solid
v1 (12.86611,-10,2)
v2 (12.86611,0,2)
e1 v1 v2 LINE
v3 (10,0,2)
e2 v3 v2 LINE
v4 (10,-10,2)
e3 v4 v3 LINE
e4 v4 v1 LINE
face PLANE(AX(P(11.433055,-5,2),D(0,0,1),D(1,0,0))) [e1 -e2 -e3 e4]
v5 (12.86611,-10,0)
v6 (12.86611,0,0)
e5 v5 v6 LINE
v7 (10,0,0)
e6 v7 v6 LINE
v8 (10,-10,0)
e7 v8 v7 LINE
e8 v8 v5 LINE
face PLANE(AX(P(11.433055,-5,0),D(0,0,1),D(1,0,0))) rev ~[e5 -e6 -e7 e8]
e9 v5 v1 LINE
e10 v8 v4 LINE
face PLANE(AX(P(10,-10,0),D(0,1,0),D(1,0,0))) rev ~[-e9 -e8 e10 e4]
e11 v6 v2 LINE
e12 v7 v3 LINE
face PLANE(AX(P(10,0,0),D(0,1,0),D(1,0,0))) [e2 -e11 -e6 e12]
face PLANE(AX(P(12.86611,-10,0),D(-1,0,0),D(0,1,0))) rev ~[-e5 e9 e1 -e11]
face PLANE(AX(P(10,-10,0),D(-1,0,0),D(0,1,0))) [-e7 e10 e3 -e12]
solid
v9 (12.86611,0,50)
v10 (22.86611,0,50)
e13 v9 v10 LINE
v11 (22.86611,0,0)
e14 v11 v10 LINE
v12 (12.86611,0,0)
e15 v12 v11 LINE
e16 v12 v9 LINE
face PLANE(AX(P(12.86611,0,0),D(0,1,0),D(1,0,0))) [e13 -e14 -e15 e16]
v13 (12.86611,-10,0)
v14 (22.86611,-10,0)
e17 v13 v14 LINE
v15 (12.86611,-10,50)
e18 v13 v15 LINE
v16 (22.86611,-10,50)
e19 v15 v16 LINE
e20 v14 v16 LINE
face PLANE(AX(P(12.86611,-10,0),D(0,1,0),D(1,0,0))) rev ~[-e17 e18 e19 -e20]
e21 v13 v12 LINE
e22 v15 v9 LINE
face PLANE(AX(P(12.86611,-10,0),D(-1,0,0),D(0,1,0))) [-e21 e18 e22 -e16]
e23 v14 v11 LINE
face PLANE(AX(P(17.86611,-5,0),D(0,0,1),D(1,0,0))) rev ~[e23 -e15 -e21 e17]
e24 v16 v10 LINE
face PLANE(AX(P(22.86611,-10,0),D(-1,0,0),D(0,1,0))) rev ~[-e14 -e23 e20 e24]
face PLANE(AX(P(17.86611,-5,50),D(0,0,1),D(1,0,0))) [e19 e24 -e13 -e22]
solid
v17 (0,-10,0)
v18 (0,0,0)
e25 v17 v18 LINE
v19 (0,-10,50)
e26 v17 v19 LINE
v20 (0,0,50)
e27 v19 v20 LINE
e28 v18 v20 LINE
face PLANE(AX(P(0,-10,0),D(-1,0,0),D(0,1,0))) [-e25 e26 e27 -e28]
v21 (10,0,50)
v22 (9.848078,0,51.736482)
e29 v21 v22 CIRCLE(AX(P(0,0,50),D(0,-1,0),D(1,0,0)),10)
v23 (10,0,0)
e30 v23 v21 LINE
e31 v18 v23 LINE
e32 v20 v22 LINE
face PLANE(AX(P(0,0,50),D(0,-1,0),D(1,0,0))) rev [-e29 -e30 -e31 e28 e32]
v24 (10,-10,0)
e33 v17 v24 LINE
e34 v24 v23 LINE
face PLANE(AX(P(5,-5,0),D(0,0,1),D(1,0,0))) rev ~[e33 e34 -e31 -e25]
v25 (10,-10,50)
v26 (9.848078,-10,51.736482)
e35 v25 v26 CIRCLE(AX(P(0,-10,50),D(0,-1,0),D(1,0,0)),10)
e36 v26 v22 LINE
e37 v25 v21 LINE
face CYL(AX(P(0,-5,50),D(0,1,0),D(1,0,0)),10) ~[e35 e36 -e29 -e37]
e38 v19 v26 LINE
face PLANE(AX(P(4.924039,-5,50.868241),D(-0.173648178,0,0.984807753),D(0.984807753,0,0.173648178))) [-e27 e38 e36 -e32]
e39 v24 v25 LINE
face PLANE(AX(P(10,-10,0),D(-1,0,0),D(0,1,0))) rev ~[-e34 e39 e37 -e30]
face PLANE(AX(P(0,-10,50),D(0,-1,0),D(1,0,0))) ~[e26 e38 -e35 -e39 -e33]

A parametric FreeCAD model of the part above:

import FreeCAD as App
import Part
import Sketcher

V = App.Vector
Q = App.Units.Quantity

doc = App.newDocument("Part")
body = doc.addObject("PartDesign::Body", "Body")
body.AllowCompound = True

sketch1 = body.newObject("Sketcher::SketchObject", "Sketch")
sketch1.AttachmentSupport = (doc.getObject("XY_Plane"), [""])
sketch1.MapMode = "FlatFace"
sketch1.addGeometry([
    Part.LineSegment(V(13, 0, 0), V(13, -10, 0)),
    Part.LineSegment(V(13, -10, 0), V(23, -10, 0)),
    Part.LineSegment(V(23, -10, 0), V(23, 0, 0)),
    Part.LineSegment(V(23, 0, 0), V(13, 0, 0)),
    Part.LineSegment(V(0, 0, 0), V(0, -10, 0)),
    Part.LineSegment(V(0, -10, 0), V(10, -10, 0)),
    Part.LineSegment(V(10, -10, 0), V(10, 0, 0)),
    Part.LineSegment(V(10, 0, 0), V(0, 0, 0)),
], False)
sketch1.addConstraint([
    Sketcher.Constraint("Coincident", 0, 2, 1, 1),
    Sketcher.Constraint("Coincident", 1, 2, 2, 1),
    Sketcher.Constraint("Coincident", 2, 2, 3, 1),
    Sketcher.Constraint("Coincident", 3, 2, 0, 1),
    Sketcher.Constraint("Coincident", 4, 2, 5, 1),
    Sketcher.Constraint("Coincident", 5, 2, 6, 1),
    Sketcher.Constraint("Coincident", 6, 2, 7, 1),
    Sketcher.Constraint("Coincident", 7, 2, 4, 1),
    Sketcher.Constraint("Vertical", 0),
    Sketcher.Constraint("Horizontal", 1),
    Sketcher.Constraint("Vertical", 2),
    Sketcher.Constraint("Horizontal", 3),
    Sketcher.Constraint("Vertical", 4),
    Sketcher.Constraint("Horizontal", 5),
    Sketcher.Constraint("Vertical", 6),
    Sketcher.Constraint("Horizontal", 7),
    Sketcher.Constraint("Coincident", 7, 2, -1, 1),
    Sketcher.Constraint("PointOnObject", 2, 2, -1),
    Sketcher.Constraint("Horizontal", 1, 2, 4, 2),
    Sketcher.Constraint("Equal", 3, 5),
    Sketcher.Constraint("Equal", 7, 0),
    Sketcher.Constraint("DistanceX", 1, 1, 1, 2, Q("10 mm")),
    Sketcher.Constraint("DistanceX", -1, 1, 0, 2, Q("12.86611 mm")),
])
pad1 = body.newObject("PartDesign::Pad", "Pad")
pad1.Profile = sketch1
pad1.Length = 50

sketch2 = body.newObject("Sketcher::SketchObject", "Sketch001")
sketch2.AttachmentSupport = (doc.getObject("XY_Plane"), [""])
sketch2.MapMode = "FlatFace"
sketch2.AttachmentOffset = App.Placement(V(0, 0, 50), App.Rotation())
sketch2.addGeometry([
    Part.LineSegment(V(0, 0, 0), V(0, -10, 0)),
    Part.LineSegment(V(0, -10, 0), V(10, -10, 0)),
    Part.LineSegment(V(10, -10, 0), V(10, 0, 0)),
    Part.LineSegment(V(10, 0, 0), V(0, 0, 0)),
], False)
sketch2.addConstraint([
    Sketcher.Constraint("Coincident", 0, 2, 1, 1),
    Sketcher.Constraint("Coincident", 1, 2, 2, 1),
    Sketcher.Constraint("Coincident", 2, 2, 3, 1),
    Sketcher.Constraint("Coincident", 3, 2, 0, 1),
    Sketcher.Constraint("Vertical", 0),
    Sketcher.Constraint("Horizontal", 1),
    Sketcher.Constraint("Vertical", 2),
    Sketcher.Constraint("Horizontal", 3),
    Sketcher.Constraint("Coincident", 3, 2, -1, 1),
    Sketcher.Constraint("Equal", 3, 0),
    Sketcher.Constraint("DistanceX", 1, 1, 1, 2, Q("10 mm")),
])
revolution = body.newObject("PartDesign::Revolution", "Revolution")
revolution.Profile = sketch2
revolution.ReferenceAxis = (sketch2, ["V_Axis"])
revolution.Angle = 10
revolution.Reversed = True
body2 = doc.addObject("PartDesign::Body", "Body001")

sketch3 = body2.newObject("Sketcher::SketchObject", "Sketch002")
sketch3.AttachmentSupport = (doc.getObject("XY_Plane001"), [""])
sketch3.MapMode = "FlatFace"
sketch3.addGeometry([
    Part.LineSegment(V(10, 0, 0), V(10, -10, 0)),
    Part.LineSegment(V(10, -10, 0), V(12.9, -10, 0)),
    Part.LineSegment(V(12.9, -10, 0), V(12.9, 0, 0)),
    Part.LineSegment(V(12.9, 0, 0), V(10, 0, 0)),
], False)
sketch3.addConstraint([
    Sketcher.Constraint("Coincident", 0, 2, 1, 1),
    Sketcher.Constraint("Coincident", 1, 2, 2, 1),
    Sketcher.Constraint("Coincident", 2, 2, 3, 1),
    Sketcher.Constraint("Coincident", 3, 2, 0, 1),
    Sketcher.Constraint("Vertical", 0),
    Sketcher.Constraint("Horizontal", 1),
    Sketcher.Constraint("Vertical", 2),
    Sketcher.Constraint("Horizontal", 3),
    Sketcher.Constraint("PointOnObject", 2, 2, -1),
    Sketcher.Constraint("DistanceY", 0, 2, 0, 1, Q("10 mm")),
    Sketcher.Constraint("DistanceX", -1, 1, 0, 2, Q("10 mm")),
    Sketcher.Constraint("DistanceX", 1, 1, 1, 2, Q("2.86611 mm")),
])
pad2 = body2.newObject("PartDesign::Pad", "Pad001")
pad2.Profile = sketch3
pad2.Length = 2

doc.recompute()
